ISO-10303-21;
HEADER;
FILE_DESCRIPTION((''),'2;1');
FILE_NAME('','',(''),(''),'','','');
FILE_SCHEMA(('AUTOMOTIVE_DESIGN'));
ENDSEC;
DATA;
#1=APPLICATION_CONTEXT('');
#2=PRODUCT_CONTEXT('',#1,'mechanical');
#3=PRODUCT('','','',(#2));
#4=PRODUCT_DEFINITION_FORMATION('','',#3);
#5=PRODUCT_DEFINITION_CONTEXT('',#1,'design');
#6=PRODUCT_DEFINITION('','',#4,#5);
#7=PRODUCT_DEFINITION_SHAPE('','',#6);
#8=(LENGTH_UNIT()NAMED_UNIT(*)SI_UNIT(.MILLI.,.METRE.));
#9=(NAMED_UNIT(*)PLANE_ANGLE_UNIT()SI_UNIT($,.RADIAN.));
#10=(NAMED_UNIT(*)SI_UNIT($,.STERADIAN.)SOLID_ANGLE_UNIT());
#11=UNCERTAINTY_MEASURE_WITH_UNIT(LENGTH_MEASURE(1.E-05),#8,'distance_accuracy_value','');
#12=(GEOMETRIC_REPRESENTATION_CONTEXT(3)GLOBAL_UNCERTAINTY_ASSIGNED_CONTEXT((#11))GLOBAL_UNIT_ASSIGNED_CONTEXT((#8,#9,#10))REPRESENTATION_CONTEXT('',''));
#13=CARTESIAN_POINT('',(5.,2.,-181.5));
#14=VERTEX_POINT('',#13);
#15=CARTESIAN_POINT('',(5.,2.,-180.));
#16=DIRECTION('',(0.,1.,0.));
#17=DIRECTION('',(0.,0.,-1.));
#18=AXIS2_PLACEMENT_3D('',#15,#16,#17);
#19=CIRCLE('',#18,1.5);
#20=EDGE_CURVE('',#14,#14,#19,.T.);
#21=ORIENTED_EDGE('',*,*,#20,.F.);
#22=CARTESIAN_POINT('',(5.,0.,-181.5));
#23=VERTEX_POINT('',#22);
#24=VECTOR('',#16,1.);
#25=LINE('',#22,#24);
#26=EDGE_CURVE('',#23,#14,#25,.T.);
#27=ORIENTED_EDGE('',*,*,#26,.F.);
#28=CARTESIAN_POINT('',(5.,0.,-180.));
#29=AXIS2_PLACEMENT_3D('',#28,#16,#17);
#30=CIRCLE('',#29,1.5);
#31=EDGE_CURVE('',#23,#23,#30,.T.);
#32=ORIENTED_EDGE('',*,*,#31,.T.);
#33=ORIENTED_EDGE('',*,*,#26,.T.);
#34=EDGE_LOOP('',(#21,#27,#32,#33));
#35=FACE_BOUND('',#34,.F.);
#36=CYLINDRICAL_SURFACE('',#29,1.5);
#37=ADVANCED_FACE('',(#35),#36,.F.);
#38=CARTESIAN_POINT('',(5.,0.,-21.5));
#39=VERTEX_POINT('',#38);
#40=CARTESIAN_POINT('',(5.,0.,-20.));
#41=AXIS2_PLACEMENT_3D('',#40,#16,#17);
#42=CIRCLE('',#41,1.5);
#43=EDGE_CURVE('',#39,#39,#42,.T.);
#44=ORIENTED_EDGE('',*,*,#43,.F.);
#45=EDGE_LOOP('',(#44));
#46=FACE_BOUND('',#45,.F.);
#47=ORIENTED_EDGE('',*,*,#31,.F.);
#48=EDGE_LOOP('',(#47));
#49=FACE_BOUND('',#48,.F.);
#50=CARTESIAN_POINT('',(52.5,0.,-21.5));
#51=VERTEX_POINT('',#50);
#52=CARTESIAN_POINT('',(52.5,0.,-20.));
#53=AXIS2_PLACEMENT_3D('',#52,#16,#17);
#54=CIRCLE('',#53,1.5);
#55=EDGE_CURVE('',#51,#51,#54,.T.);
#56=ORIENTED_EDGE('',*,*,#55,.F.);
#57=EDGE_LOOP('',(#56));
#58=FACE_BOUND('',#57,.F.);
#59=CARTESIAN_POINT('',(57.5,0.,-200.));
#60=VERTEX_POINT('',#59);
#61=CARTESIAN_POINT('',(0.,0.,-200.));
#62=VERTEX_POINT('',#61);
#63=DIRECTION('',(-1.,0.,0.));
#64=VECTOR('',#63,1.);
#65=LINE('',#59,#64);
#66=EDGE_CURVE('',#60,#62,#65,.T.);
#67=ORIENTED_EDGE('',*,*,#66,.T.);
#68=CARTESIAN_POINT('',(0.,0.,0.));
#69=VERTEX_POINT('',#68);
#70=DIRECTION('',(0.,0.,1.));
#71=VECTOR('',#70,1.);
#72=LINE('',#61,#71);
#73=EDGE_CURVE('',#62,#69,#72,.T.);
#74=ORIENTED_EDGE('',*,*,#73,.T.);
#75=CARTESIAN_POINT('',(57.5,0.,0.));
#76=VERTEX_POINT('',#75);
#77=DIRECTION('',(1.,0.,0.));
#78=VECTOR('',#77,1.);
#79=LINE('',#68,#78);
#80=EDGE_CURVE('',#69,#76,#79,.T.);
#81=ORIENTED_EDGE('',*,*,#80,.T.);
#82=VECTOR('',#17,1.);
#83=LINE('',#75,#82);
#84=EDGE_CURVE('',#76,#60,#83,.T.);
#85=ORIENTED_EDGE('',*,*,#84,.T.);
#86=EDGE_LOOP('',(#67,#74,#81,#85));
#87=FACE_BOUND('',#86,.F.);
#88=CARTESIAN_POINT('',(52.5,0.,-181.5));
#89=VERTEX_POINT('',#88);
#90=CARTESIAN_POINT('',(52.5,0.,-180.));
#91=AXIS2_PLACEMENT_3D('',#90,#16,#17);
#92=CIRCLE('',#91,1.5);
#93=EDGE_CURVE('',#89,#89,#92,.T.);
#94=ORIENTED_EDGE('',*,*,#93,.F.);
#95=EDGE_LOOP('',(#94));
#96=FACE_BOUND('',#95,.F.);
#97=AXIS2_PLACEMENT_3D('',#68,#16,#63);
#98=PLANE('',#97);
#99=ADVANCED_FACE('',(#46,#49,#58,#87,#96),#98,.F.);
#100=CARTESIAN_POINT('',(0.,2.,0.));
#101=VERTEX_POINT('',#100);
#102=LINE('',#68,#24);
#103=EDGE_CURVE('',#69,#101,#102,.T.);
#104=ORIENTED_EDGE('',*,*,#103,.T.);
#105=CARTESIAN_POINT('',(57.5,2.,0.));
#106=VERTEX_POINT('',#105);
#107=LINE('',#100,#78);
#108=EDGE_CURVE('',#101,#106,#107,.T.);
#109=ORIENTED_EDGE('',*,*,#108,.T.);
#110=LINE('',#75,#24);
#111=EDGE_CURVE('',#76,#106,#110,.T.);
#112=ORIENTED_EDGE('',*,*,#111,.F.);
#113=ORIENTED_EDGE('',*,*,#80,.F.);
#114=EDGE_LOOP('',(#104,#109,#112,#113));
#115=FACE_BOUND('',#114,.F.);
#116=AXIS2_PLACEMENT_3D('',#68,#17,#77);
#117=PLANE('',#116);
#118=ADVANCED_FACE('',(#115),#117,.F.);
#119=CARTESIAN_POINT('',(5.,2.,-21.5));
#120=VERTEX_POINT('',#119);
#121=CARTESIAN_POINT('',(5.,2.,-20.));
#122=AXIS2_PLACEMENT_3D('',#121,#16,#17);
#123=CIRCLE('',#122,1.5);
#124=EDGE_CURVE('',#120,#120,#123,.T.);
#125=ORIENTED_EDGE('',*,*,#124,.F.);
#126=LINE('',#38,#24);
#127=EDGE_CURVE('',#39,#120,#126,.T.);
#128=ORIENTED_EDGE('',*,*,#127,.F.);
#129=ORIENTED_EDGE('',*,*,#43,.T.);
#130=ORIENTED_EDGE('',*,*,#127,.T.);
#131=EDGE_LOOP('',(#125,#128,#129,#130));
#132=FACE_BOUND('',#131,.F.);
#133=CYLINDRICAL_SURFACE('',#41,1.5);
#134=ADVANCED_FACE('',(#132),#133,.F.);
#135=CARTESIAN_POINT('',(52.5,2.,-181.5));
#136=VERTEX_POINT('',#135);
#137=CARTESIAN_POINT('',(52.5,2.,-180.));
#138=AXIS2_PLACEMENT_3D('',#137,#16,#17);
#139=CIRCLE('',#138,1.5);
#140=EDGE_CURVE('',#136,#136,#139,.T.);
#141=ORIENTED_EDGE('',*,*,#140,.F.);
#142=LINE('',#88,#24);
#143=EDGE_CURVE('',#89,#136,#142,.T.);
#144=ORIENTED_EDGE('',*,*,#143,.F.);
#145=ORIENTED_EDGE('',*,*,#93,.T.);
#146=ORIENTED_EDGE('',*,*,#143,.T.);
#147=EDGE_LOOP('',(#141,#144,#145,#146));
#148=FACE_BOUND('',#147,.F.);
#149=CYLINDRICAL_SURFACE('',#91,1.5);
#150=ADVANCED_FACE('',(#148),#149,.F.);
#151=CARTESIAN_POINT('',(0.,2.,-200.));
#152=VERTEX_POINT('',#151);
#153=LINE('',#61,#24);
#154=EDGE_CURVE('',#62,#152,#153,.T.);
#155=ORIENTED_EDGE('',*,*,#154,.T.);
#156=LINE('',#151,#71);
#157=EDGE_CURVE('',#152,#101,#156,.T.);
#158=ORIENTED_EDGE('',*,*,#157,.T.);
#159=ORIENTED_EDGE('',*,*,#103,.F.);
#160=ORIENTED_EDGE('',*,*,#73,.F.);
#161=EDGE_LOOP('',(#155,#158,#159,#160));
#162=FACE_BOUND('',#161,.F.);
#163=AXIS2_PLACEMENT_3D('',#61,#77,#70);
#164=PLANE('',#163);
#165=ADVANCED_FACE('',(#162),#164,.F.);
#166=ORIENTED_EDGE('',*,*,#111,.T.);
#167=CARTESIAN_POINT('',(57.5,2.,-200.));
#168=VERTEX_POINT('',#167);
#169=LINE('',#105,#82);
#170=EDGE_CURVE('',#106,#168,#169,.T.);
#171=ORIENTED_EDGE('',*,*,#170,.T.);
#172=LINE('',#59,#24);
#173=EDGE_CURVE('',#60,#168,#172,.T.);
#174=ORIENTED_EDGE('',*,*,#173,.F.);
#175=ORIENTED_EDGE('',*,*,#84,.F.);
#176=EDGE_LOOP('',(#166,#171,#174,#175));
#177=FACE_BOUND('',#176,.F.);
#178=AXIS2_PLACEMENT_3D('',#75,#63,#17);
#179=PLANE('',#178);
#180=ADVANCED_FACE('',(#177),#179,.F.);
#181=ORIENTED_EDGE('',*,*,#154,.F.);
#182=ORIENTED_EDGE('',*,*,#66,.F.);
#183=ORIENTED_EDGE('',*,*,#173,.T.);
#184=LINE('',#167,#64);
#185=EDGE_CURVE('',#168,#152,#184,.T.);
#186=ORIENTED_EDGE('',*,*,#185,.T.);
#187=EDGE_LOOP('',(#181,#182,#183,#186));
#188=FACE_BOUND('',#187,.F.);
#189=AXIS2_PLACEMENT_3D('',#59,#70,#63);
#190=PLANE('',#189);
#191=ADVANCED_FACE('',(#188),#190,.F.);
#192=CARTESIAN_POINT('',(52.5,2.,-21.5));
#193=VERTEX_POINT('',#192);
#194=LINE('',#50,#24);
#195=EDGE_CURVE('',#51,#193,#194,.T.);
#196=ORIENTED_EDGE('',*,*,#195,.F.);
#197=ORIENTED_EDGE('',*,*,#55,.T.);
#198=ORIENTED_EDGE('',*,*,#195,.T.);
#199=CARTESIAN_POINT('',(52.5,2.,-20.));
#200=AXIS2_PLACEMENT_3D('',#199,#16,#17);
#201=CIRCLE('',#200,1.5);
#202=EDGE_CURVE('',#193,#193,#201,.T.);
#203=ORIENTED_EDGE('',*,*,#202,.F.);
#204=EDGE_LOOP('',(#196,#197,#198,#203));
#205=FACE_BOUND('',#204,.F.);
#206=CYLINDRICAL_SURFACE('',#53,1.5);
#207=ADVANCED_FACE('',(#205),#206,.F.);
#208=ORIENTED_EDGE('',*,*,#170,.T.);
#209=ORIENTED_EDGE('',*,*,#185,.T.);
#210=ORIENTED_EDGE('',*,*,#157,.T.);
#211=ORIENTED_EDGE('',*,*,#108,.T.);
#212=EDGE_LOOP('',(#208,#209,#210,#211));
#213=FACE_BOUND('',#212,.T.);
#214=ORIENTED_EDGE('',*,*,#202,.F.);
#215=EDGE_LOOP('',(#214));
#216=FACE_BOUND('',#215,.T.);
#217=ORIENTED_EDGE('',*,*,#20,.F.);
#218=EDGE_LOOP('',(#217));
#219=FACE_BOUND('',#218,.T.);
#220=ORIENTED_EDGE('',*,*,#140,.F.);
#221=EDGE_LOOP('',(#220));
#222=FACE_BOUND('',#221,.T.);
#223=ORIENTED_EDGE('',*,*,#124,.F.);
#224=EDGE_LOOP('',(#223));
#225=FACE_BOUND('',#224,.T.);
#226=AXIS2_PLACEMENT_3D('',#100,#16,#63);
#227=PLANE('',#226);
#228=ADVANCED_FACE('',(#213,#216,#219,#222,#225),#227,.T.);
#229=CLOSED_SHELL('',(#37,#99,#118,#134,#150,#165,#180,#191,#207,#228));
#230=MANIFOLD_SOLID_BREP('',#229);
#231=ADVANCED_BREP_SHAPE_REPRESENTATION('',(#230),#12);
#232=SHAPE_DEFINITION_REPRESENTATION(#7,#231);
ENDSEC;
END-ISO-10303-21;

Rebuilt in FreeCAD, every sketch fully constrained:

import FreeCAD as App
import Part
import Sketcher

V = App.Vector
Q = App.Units.Quantity

doc = App.newDocument("Part")
params = doc.addObject("Spreadsheet::Sheet", "Params")
for row, (alias, value) in enumerate([
    ("sketch1_height", "200 mm"),
    ("sketch1_width", "57.5 mm"),
    ("pad1_length", "2 mm"),
    ("sketch2_diameter", "3 mm"),
    ("hole_diameter", "3 mm"),
], start=1):
    params.set(f"A{row}", alias)
    params.set(f"B{row}", "=" + value)
    params.setAlias(f"B{row}", alias)

body = doc.addObject("PartDesign::Body", "Body")

sketch1 = body.newObject("Sketcher::SketchObject", "Sketch")
sketch1.AttachmentSupport = (doc.getObject("XZ_Plane"), [""])
sketch1.MapMode = "FlatFace"
sketch1.addGeometry(Part.LineSegment(V(0, -200, 0), V(0, 0, 0)), False)
sketch1.addGeometry(Part.LineSegment(V(0, 0, 0), V(57.5, 0, 0)), False)
sketch1.addGeometry(Part.LineSegment(V(57.5, 0, 0), V(57.5, -200, 0)), False)
sketch1.addGeometry(Part.LineSegment(V(57.5, -200, 0), V(0, -200, 0)), False)
sketch1.addConstraint(Sketcher.Constraint("Coincident", 0, 2, 1, 1))
sketch1.addConstraint(Sketcher.Constraint("Coincident", 1, 2, 2, 1))
sketch1.addConstraint(Sketcher.Constraint("Coincident", 2, 2, 3, 1))
sketch1.addConstraint(Sketcher.Constraint("Coincident", 3, 2, 0, 1))
sketch1.addConstraint(Sketcher.Constraint("Vertical", 0))
sketch1.addConstraint(Sketcher.Constraint("Horizontal", 1))
sketch1.addConstraint(Sketcher.Constraint("Vertical", 2))
sketch1.addConstraint(Sketcher.Constraint("Horizontal", 3))
sketch1.addConstraint(Sketcher.Constraint("Coincident", 0, 2, -1, 1))
sketch1.addConstraint(Sketcher.Constraint("DistanceY", 0, 1, 0, 2, Q("200 mm")))
sketch1.addConstraint(Sketcher.Constraint("DistanceX", 1, 1, 1, 2, Q("57.5 mm")))
sketch1.setExpression("Constraints[9]", "Params.sketch1_height")
sketch1.setExpression("Constraints[10]", "Params.sketch1_width")
pad1 = body.newObject("PartDesign::Pad", "Pad")
pad1.Profile = sketch1
pad1.setExpression("Length", "Params.pad1_length")
pad1.Reversed = True

sketch2 = body.newObject("Sketcher::SketchObject", "Sketch001")
sketch2.AttachmentSupport = (doc.getObject("XZ_Plane"), [""])
sketch2.MapMode = "FlatFace"
sketch2.addGeometry(Part.Circle(V(52.5, -20, 0), V(0, 0, 1), 1.5), False)
sketch2.addGeometry(Part.Circle(V(52.5, -180, 0), V(0, 0, 1), 1.5), False)
sketch2.addGeometry(Part.Circle(V(5, -180, 0), V(0, 0, 1), 1.5), False)
sketch2.addGeometry(Part.Circle(V(5, -20, 0), V(0, 0, 1), 1.5), False)
sketch2.addConstraint(Sketcher.Constraint("Equal", 0, 1))
sketch2.addConstraint(Sketcher.Constraint("Equal", 1, 2))
sketch2.addConstraint(Sketcher.Constraint("Equal", 2, 3))
sketch2.addConstraint(Sketcher.Constraint("Horizontal", 1, 3, 2, 3))
sketch2.addConstraint(Sketcher.Constraint("Horizontal", 0, 3, 3, 3))
sketch2.addConstraint(Sketcher.Constraint("Vertical", 0, 3, 1, 3))
sketch2.addConstraint(Sketcher.Constraint("Vertical", 2, 3, 3, 3))
sketch2.addConstraint(Sketcher.Constraint("Diameter", 0, Q("3 mm")))
sketch2.addConstraint(Sketcher.Constraint("DistanceY", 0, 3, -1, 1, Q("20 mm")))
sketch2.addConstraint(Sketcher.Constraint("DistanceY", 1, 3, -1, 1, Q("180 mm")))
sketch2.addConstraint(Sketcher.Constraint("DistanceX", -1, 1, 2, 3, Q("5 mm")))
sketch2.addConstraint(Sketcher.Constraint("DistanceX", -1, 1, 0, 3, Q("52.5 mm")))
sketch2.setExpression("Constraints[7]", "Params.sketch2_diameter")
doc.recompute()
hole = body.newObject("PartDesign::Hole", "Hole")
hole.Profile = sketch2
hole.ThreadType = "None"
hole.setExpression("Diameter", "Params.hole_diameter")
hole.DepthType = "ThroughAll"

doc.recompute()
